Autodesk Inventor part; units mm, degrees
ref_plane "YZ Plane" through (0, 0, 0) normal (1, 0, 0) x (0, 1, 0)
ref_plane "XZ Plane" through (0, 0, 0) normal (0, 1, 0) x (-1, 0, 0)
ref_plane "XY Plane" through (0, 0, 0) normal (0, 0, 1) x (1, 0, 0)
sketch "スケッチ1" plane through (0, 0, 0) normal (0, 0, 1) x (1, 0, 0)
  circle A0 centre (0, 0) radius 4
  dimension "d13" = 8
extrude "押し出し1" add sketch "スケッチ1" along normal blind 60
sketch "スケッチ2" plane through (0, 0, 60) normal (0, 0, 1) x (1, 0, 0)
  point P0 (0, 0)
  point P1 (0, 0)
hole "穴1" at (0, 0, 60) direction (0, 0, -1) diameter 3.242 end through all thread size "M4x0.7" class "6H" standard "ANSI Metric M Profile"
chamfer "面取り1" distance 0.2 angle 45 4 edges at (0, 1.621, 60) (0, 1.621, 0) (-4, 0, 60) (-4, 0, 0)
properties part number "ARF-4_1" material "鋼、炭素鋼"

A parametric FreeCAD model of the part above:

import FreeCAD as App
import Part
import Sketcher


def edges_at(feature, points):
    """Names of the edges that pass closest to the given points."""
    edges = feature.Shape.Edges
    near = lambda p: min(range(len(edges)), key=lambda i: edges[i].distToShape(Part.Vertex(*p))[0])
    return sorted({f"Edge{near(p) + 1}" for p in points})

doc = App.newDocument("Part")
body = doc.addObject("PartDesign::Body", "Body")

# Sketch on XY plane
sketch1 = body.newObject("Sketcher::SketchObject", "Sketch")
sketch1.AttachmentSupport = (doc.getObject("XY_Plane"), [""])
sketch1.MapMode = "FlatFace"
sketch1.addGeometry(Part.Circle(App.Vector(0, 0, 0), App.Vector(0, 0, 1), 4), False)
sketch1.addConstraint([
    Sketcher.Constraint("Coincident", 0, 3, -1, 1),
    Sketcher.Constraint("Diameter", 0, 8.0),
])
pad1 = body.newObject("PartDesign::Pad", "Pad")
pad1.Profile = sketch1
pad1.Length = 60

# Sketch on XY plane
sketch2 = body.newObject("Sketcher::SketchObject", "Sketch001")
sketch2.AttachmentSupport = (doc.getObject("XY_Plane"), [""])
sketch2.MapMode = "FlatFace"
sketch2.AttachmentOffset = App.Placement(App.Vector(0, 0, 60), App.Rotation())
sketch2.addGeometry(Part.Circle(App.Vector(0, 0, 0), App.Vector(0, 0, 1), 1.6), False)
sketch2.addConstraint([
    Sketcher.Constraint("Coincident", 0, 3, -1, 1),
    Sketcher.Constraint("Diameter", 0, 3.242),
])
doc.recompute()
hole = body.newObject("PartDesign::Hole", "Hole")
hole.Profile = sketch2
hole.ThreadType = "None"
hole.Diameter = 3.242
hole.DepthType = "ThroughAll"
doc.recompute()

chamfer = body.newObject("PartDesign::Chamfer", "Chamfer")
chamfer.Base = (hole, edges_at(hole, [
    (0, 1.621, 60),
    (0, 1.621, 0),
    (-4, 0, 60),
    (-4, 0, 0),
]))
chamfer.Size = 0.2

doc.recompute()
